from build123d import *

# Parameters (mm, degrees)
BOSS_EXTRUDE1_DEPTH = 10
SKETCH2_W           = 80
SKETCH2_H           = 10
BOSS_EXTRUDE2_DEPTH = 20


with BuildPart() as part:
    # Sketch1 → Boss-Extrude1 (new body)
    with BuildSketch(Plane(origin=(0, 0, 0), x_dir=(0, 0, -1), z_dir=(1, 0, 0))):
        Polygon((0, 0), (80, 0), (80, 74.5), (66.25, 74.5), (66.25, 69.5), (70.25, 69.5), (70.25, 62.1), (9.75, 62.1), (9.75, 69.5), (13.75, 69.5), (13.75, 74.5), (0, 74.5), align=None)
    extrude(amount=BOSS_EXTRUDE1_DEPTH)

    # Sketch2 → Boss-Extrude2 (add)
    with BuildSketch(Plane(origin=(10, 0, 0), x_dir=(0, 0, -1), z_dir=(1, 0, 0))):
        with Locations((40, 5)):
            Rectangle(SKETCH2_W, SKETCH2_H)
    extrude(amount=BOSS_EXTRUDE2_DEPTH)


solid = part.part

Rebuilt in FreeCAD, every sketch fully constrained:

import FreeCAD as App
import Part
import Sketcher
from FreeCAD import Vector

doc = App.newDocument("Part")
params = doc.addObject("Spreadsheet::Sheet", "Params")
for row, (alias, value) in enumerate([
    ("sketch1_width", "5 mm"),
    ("sketch1_height", "80 mm"),
    ("sketch1_height2", "4 mm"),
    ("sketch1_width2", "74.5 mm"),
    ("sketch1_width3", "7.4 mm"),
    ("pad1_length", "10 mm"),
    ("sketch2_width", "10 mm"),
    ("sketch2_height", "80 mm"),
    ("pad2_length", "20 mm"),
], start=1):
    params.set(f"A{row}", alias)
    params.set(f"B{row}", "=" + value)
    params.setAlias(f"B{row}", alias)

body = doc.addObject("PartDesign::Body", "Body")

# Sketch on YZ plane
sketch1 = body.newObject("Sketcher::SketchObject", "Sketch")
sketch1.AttachmentSupport = (doc.getObject("YZ_Plane"), [""])
sketch1.MapMode = "FlatFace"
sketch1.addGeometry([
    Part.LineSegment(Vector(0, 0, 0), Vector(0, -80, 0)),  # 0
    Part.LineSegment(Vector(0, -80, 0), Vector(74.5, -80, 0)),  # 1
    Part.LineSegment(Vector(74.5, -80, 0), Vector(74.5, -66.2, 0)),  # 2
    Part.LineSegment(Vector(74.5, -66.2, 0), Vector(69.5, -66.2, 0)),  # 3
    Part.LineSegment(Vector(69.5, -66.2, 0), Vector(69.5, -70.2, 0)),  # 4
    Part.LineSegment(Vector(69.5, -70.2, 0), Vector(62.1, -70.2, 0)),  # 5
    Part.LineSegment(Vector(62.1, -70.2, 0), Vector(62.1, -9.8, 0)),  # 6
    Part.LineSegment(Vector(62.1, -9.8, 0), Vector(69.5, -9.8, 0)),  # 7
    Part.LineSegment(Vector(69.5, -9.8, 0), Vector(69.5, -13.8, 0)),  # 8
    Part.LineSegment(Vector(69.5, -13.8, 0), Vector(74.5, -13.8, 0)),  # 9
    Part.LineSegment(Vector(74.5, -13.8, 0), Vector(74.5, 0, 0)),  # 10
    Part.LineSegment(Vector(74.5, 0, 0), Vector(0, 0, 0)),  # 11
], False)
sketch1.addConstraint([
    Sketcher.Constraint("Coincident", 0, 2, 1, 1),
    Sketcher.Constraint("Coincident", 1, 2, 2, 1),
    Sketcher.Constraint("Coincident", 2, 2, 3, 1),
    Sketcher.Constraint("Coincident", 3, 2, 4, 1),
    Sketcher.Constraint("Coincident", 4, 2, 5, 1),
    Sketcher.Constraint("Coincident", 5, 2, 6, 1),
    Sketcher.Constraint("Coincident", 6, 2, 7, 1),
    Sketcher.Constraint("Coincident", 7, 2, 8, 1),
    Sketcher.Constraint("Coincident", 8, 2, 9, 1),
    Sketcher.Constraint("Coincident", 9, 2, 10, 1),
    Sketcher.Constraint("Coincident", 10, 2, 11, 1),
    Sketcher.Constraint("Coincident", 11, 2, 0, 1),
    Sketcher.Constraint("Vertical", 0),
    Sketcher.Constraint("Horizontal", 1),
    Sketcher.Constraint("Vertical", 2),
    Sketcher.Constraint("Horizontal", 3),
    Sketcher.Constraint("Vertical", 4),
    Sketcher.Constraint("Horizontal", 5),
    Sketcher.Constraint("Vertical", 6),
    Sketcher.Constraint("Horizontal", 7),
    Sketcher.Constraint("Vertical", 8),
    Sketcher.Constraint("Horizontal", 9),
    Sketcher.Constraint("Vertical", 10),
    Sketcher.Constraint("Horizontal", 11),
    Sketcher.Constraint("Coincident", 11, 2, -1, 1),
    Sketcher.Constraint("Vertical", 4, 2, 7, 2),
    Sketcher.Constraint("Vertical", 2, 2, 9, 2),
    Sketcher.Constraint("Equal", 4, 8),
    Sketcher.Constraint("Equal", 2, 10),
    Sketcher.Constraint("DistanceX", 3, 2, 3, 1, 5.0),
    Sketcher.Constraint("DistanceY", 0, 2, 0, 1, 80.0),
    Sketcher.Constraint("DistanceY", 4, 2, 4, 1, 4.0),
    Sketcher.Constraint("DistanceX", 1, 1, 1, 2, 74.5),
    Sketcher.Constraint("DistanceX", 5, 2, 5, 1, 7.4),
    Sketcher.Constraint("DistanceY", 6, 1, 6, 2, 60.5),
])
sketch1.setExpression("Constraints[29]", "Params.sketch1_width")
sketch1.setExpression("Constraints[30]", "Params.sketch1_height")
sketch1.setExpression("Constraints[31]", "Params.sketch1_height2")
sketch1.setExpression("Constraints[32]", "Params.sketch1_width2")
sketch1.setExpression("Constraints[33]", "Params.sketch1_width3")
pad1 = body.newObject("PartDesign::Pad", "Pad")
pad1.Profile = sketch1
pad1.setExpression("Length", "Params.pad1_length")

# Sketch on YZ plane
sketch2 = body.newObject("Sketcher::SketchObject", "Sketch001")
sketch2.AttachmentSupport = (doc.getObject("YZ_Plane"), [""])
sketch2.MapMode = "FlatFace"
sketch2.AttachmentOffset = App.Placement(Vector(0, 0, 10), App.Rotation())
sketch2.addGeometry([
    Part.LineSegment(Vector(10, 0, 0), Vector(0, 0, 0)),
    Part.LineSegment(Vector(0, 0, 0), Vector(0, -80, 0)),
    Part.LineSegment(Vector(0, -80, 0), Vector(10, -80, 0)),
    Part.LineSegment(Vector(10, -80, 0), Vector(10, 0, 0)),
], False)
sketch2.addConstraint([
    Sketcher.Constraint("Coincident", 0, 2, 1, 1),
    Sketcher.Constraint("Coincident", 1, 2, 2, 1),
    Sketcher.Constraint("Coincident", 2, 2, 3, 1),
    Sketcher.Constraint("Coincident", 3, 2, 0, 1),
    Sketcher.Constraint("Horizontal", 0),
    Sketcher.Constraint("Vertical", 1),
    Sketcher.Constraint("Horizontal", 2),
    Sketcher.Constraint("Vertical", 3),
    Sketcher.Constraint("Coincident", 0, 2, -1, 1),
    Sketcher.Constraint("DistanceX", 0, 2, 0, 1, 10.0),
    Sketcher.Constraint("DistanceY", 1, 2, 1, 1, 80.0),
])
sketch2.setExpression("Constraints[9]", "Params.sketch2_width")
sketch2.setExpression("Constraints[10]", "Params.sketch2_height")
pad2 = body.newObject("PartDesign::Pad", "Pad001")
pad2.Profile = sketch2
pad2.setExpression("Length", "Params.pad2_length")

doc.recompute()
